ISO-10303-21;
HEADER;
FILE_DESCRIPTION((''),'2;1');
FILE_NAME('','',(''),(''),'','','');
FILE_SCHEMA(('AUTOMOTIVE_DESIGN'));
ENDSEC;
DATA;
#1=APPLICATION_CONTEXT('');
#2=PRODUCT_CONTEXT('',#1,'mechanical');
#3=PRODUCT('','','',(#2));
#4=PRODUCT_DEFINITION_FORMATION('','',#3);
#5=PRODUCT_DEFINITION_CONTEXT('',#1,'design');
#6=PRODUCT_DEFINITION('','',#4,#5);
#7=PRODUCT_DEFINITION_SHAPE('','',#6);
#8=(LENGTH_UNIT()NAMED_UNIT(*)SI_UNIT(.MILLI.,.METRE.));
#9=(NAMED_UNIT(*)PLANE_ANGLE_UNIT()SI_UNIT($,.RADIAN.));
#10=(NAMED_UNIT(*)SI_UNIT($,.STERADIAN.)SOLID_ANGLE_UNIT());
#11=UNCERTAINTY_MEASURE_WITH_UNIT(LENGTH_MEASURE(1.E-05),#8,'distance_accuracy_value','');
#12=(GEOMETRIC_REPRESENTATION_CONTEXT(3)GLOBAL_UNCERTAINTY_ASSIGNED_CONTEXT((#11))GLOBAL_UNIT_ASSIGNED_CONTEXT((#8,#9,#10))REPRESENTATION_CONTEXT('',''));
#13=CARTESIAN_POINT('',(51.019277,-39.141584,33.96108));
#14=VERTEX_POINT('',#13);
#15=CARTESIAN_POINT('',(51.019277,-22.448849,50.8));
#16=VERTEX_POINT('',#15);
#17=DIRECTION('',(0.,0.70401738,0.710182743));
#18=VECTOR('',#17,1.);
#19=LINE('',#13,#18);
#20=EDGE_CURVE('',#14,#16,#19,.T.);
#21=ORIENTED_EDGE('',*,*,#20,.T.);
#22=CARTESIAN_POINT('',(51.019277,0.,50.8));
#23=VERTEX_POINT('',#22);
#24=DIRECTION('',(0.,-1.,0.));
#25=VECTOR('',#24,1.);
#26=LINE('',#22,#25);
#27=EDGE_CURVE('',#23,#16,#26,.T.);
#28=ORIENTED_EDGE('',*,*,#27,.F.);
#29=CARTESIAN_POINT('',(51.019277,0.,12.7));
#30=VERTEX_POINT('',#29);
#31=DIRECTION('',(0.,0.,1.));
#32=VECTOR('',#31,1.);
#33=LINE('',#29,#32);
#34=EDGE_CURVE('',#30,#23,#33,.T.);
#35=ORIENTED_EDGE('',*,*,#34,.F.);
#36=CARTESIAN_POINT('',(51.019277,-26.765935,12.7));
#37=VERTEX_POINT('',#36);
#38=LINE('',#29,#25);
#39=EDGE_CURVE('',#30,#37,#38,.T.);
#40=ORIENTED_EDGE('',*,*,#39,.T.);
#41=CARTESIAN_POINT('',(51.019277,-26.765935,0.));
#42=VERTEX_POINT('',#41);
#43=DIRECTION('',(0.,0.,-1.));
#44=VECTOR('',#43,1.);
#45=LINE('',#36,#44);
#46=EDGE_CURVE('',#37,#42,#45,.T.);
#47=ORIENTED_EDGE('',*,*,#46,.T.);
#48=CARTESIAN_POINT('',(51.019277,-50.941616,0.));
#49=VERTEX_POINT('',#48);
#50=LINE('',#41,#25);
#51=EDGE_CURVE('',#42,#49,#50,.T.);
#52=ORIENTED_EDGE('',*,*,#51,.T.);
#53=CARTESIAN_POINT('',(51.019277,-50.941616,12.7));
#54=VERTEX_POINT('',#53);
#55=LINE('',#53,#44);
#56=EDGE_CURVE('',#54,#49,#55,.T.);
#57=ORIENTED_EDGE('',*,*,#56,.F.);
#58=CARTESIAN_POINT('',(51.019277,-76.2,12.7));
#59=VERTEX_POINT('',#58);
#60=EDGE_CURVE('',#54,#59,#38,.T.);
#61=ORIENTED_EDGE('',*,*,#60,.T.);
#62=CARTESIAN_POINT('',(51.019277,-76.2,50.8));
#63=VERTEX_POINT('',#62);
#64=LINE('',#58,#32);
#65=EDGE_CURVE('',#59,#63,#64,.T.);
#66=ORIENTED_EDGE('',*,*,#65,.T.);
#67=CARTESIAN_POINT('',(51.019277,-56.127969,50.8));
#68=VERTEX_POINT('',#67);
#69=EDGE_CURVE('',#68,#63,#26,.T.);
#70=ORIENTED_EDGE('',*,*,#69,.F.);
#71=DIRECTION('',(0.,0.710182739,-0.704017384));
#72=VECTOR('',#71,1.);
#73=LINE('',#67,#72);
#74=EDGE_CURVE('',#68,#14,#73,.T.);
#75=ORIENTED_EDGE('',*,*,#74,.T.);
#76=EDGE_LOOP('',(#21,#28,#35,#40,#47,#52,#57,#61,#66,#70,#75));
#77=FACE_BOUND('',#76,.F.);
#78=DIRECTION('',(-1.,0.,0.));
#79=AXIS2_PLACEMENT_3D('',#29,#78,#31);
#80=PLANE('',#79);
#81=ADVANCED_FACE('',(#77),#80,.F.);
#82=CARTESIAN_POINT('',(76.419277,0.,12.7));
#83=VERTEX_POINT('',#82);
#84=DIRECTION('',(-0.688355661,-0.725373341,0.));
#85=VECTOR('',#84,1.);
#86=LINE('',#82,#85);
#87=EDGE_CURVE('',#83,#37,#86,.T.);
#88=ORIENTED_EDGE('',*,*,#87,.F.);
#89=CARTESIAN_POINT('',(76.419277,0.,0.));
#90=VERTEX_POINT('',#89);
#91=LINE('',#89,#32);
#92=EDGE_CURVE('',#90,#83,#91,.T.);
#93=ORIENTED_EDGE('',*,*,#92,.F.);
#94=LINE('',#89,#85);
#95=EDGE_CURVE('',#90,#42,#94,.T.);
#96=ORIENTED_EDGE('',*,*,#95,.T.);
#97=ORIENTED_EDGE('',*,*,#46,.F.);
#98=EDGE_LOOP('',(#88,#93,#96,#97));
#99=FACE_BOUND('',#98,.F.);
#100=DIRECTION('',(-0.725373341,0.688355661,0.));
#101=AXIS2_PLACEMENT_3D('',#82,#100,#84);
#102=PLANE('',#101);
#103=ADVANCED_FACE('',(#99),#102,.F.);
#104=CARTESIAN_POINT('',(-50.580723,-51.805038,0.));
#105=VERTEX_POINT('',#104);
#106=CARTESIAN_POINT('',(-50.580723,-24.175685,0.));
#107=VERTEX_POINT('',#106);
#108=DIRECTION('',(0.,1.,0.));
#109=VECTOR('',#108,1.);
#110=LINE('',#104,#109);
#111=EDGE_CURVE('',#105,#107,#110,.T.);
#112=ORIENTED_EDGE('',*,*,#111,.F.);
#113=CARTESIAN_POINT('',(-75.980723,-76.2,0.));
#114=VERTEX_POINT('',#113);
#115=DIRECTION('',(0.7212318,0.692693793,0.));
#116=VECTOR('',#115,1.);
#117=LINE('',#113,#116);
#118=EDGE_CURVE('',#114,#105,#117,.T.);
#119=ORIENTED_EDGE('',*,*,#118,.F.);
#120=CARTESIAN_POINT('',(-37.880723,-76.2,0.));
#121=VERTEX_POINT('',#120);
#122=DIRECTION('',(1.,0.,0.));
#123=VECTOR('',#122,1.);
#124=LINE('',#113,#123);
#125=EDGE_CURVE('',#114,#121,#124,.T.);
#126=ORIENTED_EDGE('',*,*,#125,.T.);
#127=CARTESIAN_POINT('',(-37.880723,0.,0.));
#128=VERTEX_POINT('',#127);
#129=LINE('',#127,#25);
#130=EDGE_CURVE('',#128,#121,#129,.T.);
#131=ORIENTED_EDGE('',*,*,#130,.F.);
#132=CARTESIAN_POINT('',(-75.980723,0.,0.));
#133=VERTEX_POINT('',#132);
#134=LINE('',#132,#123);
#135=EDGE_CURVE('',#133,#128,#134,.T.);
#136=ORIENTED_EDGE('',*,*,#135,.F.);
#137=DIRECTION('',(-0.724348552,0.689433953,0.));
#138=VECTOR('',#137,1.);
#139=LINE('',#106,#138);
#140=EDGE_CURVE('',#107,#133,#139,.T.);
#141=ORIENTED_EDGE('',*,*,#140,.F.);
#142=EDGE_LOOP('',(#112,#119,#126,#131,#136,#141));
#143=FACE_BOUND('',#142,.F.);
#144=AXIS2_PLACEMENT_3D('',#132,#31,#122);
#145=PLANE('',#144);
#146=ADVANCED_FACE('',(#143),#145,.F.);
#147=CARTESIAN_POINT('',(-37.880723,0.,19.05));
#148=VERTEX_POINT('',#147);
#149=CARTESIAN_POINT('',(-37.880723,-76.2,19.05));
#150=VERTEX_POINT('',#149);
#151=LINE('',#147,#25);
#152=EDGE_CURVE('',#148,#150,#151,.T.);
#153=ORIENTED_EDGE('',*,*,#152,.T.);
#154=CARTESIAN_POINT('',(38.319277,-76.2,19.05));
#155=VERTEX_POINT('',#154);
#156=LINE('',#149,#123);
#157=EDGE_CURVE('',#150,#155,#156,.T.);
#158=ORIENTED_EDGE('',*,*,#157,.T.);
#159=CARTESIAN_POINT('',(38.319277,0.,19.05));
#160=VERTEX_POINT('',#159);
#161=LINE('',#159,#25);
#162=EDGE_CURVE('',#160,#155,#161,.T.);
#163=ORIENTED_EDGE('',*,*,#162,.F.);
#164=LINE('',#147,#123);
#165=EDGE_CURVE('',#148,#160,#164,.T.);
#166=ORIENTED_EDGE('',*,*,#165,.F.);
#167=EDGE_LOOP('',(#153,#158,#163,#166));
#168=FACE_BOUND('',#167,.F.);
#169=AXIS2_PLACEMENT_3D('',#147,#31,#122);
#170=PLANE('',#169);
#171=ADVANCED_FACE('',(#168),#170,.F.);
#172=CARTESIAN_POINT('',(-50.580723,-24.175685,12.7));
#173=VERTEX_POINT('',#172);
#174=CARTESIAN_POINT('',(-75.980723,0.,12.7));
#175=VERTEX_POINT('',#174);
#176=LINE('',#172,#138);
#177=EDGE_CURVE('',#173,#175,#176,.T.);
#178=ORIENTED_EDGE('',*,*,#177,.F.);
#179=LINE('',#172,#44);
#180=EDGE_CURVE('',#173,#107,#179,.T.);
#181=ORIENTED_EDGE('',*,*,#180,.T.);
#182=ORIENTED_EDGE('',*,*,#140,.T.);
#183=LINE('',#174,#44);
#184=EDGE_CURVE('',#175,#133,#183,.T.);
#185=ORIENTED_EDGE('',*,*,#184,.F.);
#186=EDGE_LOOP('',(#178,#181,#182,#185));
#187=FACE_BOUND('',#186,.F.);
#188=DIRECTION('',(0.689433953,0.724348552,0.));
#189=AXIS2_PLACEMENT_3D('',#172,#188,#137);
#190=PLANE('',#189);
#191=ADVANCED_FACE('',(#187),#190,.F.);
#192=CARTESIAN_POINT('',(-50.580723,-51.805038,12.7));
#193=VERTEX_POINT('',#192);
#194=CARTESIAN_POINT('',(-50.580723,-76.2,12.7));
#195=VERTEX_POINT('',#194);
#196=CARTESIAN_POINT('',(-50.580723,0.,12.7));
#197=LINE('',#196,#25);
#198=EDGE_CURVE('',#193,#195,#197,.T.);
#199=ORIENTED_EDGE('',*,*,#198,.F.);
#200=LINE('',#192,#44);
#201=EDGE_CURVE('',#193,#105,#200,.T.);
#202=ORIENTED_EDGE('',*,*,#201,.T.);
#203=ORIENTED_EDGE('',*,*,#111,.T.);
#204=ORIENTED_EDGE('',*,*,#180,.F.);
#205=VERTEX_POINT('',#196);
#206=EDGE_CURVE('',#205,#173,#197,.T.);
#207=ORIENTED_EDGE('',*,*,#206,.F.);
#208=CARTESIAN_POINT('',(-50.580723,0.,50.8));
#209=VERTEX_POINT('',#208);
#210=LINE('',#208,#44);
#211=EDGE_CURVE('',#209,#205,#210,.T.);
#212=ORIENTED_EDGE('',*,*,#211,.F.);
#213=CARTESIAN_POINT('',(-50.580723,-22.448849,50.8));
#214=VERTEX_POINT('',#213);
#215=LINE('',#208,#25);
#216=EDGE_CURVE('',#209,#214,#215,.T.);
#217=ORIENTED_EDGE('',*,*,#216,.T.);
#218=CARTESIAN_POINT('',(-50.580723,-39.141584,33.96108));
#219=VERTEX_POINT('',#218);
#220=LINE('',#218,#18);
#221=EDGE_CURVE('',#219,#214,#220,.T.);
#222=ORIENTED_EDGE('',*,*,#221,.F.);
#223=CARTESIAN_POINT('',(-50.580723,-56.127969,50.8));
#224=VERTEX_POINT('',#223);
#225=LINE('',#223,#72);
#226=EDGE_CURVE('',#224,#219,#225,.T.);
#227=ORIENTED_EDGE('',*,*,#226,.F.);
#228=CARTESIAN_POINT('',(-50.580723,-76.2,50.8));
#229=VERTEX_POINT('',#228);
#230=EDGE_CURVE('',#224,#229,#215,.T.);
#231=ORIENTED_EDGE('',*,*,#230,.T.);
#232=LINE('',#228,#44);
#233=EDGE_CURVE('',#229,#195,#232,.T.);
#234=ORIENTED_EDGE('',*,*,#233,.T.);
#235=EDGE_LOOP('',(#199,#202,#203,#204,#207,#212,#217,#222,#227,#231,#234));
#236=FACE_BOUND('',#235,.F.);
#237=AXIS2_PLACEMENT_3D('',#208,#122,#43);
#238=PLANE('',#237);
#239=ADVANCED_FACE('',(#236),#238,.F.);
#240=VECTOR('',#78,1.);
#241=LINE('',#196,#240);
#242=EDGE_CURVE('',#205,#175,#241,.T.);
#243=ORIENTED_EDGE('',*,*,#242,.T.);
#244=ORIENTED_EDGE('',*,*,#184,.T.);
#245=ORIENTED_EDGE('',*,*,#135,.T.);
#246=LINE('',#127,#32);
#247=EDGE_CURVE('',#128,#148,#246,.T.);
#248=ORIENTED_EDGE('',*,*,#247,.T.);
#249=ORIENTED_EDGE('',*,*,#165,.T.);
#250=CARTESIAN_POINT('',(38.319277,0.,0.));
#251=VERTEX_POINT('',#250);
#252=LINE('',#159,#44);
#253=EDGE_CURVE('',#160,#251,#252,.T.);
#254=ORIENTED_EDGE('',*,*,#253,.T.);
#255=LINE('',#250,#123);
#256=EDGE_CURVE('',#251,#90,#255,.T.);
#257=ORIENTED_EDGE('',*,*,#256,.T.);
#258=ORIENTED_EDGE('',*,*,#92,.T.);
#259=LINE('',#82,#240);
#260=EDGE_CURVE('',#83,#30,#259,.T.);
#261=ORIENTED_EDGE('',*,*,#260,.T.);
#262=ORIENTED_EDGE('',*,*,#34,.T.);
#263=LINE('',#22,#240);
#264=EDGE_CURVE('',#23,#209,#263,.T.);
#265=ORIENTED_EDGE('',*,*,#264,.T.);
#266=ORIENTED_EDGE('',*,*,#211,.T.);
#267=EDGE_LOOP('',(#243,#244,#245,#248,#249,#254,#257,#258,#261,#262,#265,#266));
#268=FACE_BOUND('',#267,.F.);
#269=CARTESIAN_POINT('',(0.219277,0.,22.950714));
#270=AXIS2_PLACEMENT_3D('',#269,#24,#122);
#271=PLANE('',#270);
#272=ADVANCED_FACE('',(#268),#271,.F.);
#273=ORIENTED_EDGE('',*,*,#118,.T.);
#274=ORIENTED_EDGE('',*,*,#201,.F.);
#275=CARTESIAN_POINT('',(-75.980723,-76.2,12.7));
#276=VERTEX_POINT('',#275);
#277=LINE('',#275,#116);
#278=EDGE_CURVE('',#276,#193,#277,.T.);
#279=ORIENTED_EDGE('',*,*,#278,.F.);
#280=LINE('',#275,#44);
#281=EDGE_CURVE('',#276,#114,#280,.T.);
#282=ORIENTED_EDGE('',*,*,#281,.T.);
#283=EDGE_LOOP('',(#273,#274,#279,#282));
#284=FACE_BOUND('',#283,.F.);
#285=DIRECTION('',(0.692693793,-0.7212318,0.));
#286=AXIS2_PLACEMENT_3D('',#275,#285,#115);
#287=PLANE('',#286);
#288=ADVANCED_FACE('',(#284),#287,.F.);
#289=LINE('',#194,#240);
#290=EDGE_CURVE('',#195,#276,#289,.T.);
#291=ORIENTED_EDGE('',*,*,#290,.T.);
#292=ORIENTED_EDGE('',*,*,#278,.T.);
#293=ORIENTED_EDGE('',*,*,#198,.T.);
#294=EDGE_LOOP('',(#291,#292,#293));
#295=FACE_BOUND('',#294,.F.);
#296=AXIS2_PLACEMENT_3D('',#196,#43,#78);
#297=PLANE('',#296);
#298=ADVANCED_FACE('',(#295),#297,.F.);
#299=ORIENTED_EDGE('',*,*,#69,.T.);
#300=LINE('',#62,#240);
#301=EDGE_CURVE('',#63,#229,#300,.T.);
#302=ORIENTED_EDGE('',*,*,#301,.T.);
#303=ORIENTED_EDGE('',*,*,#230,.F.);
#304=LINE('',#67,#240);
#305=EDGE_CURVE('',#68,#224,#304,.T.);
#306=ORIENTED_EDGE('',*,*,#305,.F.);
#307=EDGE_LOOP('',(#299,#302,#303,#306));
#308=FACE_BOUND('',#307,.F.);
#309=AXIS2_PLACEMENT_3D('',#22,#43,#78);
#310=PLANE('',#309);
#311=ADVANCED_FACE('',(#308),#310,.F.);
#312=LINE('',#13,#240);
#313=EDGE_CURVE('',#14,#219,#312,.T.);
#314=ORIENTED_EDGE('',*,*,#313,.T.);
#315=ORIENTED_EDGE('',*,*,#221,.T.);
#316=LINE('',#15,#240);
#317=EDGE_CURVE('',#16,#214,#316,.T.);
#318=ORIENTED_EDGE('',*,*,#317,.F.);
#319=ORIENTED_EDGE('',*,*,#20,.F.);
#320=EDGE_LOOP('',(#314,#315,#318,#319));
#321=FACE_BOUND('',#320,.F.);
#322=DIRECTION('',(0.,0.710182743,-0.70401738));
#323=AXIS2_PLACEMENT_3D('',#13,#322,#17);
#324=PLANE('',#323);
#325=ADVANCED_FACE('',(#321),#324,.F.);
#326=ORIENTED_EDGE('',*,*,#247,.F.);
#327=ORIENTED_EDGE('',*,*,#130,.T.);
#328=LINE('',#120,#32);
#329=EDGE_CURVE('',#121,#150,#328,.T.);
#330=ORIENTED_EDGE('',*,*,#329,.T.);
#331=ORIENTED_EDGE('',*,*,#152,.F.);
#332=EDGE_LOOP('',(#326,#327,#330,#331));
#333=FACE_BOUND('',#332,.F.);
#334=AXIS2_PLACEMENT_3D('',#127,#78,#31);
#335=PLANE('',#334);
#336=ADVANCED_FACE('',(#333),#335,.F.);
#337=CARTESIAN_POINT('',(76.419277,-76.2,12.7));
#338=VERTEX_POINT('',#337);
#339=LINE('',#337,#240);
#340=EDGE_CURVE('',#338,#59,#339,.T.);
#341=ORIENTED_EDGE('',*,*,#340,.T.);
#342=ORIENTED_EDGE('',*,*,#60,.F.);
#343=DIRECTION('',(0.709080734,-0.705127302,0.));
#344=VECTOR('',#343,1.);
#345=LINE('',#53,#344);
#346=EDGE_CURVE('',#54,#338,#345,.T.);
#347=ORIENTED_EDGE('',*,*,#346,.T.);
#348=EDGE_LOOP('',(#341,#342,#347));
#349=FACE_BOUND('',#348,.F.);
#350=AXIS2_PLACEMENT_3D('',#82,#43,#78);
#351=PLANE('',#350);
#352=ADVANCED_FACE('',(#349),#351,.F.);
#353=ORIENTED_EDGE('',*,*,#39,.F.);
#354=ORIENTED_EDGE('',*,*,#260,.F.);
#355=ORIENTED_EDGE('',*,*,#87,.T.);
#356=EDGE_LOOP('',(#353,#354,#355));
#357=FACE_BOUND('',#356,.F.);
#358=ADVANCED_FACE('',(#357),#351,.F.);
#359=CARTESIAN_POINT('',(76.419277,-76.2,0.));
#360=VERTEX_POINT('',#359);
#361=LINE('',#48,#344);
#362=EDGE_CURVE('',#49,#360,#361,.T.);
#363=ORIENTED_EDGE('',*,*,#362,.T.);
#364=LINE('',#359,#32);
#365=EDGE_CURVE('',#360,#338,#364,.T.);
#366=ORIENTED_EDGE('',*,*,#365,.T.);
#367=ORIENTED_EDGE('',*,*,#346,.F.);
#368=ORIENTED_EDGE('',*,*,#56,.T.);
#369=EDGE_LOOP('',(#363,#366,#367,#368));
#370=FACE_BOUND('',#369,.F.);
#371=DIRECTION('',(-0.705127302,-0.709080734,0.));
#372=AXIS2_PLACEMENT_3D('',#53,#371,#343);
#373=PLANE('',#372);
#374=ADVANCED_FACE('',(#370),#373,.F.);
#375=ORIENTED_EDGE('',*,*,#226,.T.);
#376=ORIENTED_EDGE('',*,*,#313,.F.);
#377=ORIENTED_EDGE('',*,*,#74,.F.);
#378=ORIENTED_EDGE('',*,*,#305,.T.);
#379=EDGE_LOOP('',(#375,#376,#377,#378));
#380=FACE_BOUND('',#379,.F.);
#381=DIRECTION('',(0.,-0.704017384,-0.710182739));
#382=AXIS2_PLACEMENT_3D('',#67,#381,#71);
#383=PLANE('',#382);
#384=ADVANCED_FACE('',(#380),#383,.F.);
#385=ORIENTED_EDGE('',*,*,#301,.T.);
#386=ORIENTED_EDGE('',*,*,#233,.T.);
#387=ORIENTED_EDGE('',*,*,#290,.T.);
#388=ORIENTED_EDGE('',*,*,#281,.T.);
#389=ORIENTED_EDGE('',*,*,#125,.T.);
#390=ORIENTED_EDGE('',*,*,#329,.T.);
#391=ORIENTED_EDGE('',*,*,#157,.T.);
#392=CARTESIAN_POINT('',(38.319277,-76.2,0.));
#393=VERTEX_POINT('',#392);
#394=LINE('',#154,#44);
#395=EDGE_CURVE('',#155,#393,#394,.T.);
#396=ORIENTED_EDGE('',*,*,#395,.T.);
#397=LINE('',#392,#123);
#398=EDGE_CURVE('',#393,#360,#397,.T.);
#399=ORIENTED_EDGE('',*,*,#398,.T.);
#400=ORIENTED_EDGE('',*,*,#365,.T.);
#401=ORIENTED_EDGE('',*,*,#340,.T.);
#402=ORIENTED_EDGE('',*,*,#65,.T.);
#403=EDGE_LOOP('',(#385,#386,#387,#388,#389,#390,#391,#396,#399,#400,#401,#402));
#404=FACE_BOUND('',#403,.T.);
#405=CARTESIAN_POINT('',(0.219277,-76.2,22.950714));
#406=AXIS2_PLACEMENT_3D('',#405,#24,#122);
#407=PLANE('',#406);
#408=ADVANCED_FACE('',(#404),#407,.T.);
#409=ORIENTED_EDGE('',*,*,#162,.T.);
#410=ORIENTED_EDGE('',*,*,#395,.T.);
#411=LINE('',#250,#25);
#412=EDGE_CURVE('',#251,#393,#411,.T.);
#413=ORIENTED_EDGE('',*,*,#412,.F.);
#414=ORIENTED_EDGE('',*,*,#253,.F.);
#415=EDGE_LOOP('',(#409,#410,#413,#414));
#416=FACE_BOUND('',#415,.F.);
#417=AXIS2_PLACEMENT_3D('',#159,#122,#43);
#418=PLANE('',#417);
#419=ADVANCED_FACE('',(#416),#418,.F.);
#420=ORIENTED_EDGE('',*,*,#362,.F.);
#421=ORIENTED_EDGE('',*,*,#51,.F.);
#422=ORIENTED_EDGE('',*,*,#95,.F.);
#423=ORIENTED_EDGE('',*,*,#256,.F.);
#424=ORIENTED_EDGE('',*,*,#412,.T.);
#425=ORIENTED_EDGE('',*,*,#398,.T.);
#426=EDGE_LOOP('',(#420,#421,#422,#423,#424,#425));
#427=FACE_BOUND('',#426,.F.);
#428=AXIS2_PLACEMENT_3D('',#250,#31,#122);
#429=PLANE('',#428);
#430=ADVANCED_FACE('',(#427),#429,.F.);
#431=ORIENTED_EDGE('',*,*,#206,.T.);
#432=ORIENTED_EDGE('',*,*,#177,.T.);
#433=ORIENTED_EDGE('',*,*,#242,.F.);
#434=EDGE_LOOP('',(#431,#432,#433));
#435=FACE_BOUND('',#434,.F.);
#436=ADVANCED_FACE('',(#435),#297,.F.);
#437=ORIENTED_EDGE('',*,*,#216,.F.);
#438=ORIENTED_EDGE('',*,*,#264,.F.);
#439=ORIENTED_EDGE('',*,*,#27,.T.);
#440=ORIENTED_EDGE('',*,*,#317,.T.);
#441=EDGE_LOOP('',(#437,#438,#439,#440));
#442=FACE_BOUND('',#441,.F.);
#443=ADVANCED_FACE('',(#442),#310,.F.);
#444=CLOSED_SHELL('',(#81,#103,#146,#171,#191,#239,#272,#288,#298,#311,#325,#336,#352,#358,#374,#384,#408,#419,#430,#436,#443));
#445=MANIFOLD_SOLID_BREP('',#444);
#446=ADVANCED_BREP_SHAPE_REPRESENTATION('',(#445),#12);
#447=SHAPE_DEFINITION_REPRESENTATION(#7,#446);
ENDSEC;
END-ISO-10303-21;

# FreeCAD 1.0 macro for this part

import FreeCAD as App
import Part
import Sketcher
from FreeCAD import Vector
Q = App.Units.Quantity


def add_polygon(sketch, points):
    """Adds a closed chain of lines whose ends are joined by coincident constraints."""
    first, n = sketch.GeometryCount, len(points)
    for a, b in zip(points, points[1:] + points[:1]):
        sketch.addGeometry(Part.LineSegment(App.Vector(*a, 0), App.Vector(*b, 0)), False)
    for i in range(n):
        sketch.addConstraint(Sketcher.Constraint("Coincident", first + i, 2, first + (i + 1) % n, 1))

doc = App.newDocument("Part")
params = doc.addObject("Spreadsheet::Sheet", "Params")
for row, (alias, value) in enumerate([
    ("sketch1_width", "3 in"),
    ("sketch1_width2", "1 in"),
    ("sketch1_width3", "4 in"),
    ("sketch1_height", "0.5 in"),
    ("sketch1_height2", "0.75 in"),
    ("pad1_length", "3 in"),
    ("sketch2_height", "3 in"),
    ("sketch3_height", "3 in"),
], start=1):
    params.set(f"A{row}", alias)
    params.set(f"B{row}", "=" + value)
    params.setAlias(f"B{row}", alias)

body = doc.addObject("PartDesign::Body", "Body")

# Sketch on XZ plane
sketch1 = doc.addObject("Sketcher::SketchObject", "Sketch")
body.addObject(sketch1)
sketch1.AttachmentSupport = (doc.XZ_Plane, [""])
sketch1.MapMode = "FlatFace"
add_polygon(sketch1, [(-76, 13), (-76, 0), (-38, 0), (-38, 19), (38, 19), (38, 0), (76, 0), (76, 13), (51, 13), (51, 51), (-51, 51), (-51, 13)])  # lines 0-11
sketch1.addConstraint([
    Sketcher.Constraint("Vertical", 0),
    Sketcher.Constraint("Horizontal", 1),
    Sketcher.Constraint("Vertical", 2),
    Sketcher.Constraint("Horizontal", 3),
    Sketcher.Constraint("Vertical", 4),
    Sketcher.Constraint("Horizontal", 5),
    Sketcher.Constraint("Vertical", 6),
    Sketcher.Constraint("Horizontal", 7),
    Sketcher.Constraint("Vertical", 8),
    Sketcher.Constraint("Horizontal", 9),
    Sketcher.Constraint("Vertical", 10),
    Sketcher.Constraint("Horizontal", 11),
    Sketcher.Constraint("PointOnObject", 0, 2, -1),
    Sketcher.Constraint("PointOnObject", 4, 2, -1),
    Sketcher.Constraint("Horizontal", 7, 2, 10, 2),
    Sketcher.Constraint("Equal", 1, 5),
    Sketcher.Constraint("Equal", 7, 11),
    Sketcher.Constraint("Equal", 5, 8),
    Sketcher.Constraint("DistanceX", 3, 1, 3, 2, Q("3 in")),
    Sketcher.Constraint("DistanceX", 7, 2, 7, 1, Q("1 in")),
    Sketcher.Constraint("DistanceX", 9, 2, 9, 1, Q("4 in")),
    Sketcher.Constraint("DistanceY", 0, 2, 0, 1, Q("0.5 in")),
    Sketcher.Constraint("DistanceY", 2, 1, 2, 2, Q("0.75 in")),
    Sketcher.Constraint("DistanceX", 0, 2, -1, 1, Q("75.980723 mm")),
])
sketch1.setExpression("Constraints[30]", "Params.sketch1_width")
sketch1.setExpression("Constraints[31]", "Params.sketch1_width2")
sketch1.setExpression("Constraints[32]", "Params.sketch1_width3")
sketch1.setExpression("Constraints[33]", "Params.sketch1_height")
sketch1.setExpression("Constraints[34]", "Params.sketch1_height2")
pad1 = doc.addObject("PartDesign::Pad", "Pad")
body.addObject(pad1)
pad1.Profile = sketch1
pad1.setExpression("Length", "Params.pad1_length")

# Sketch on XY plane
sketch2 = doc.addObject("Sketcher::SketchObject", "Sketch001")
body.addObject(sketch2)
sketch2.AttachmentSupport = (doc.XY_Plane, [""])
sketch2.MapMode = "FlatFace"
sketch2.AttachmentOffset = App.Placement(Vector(0, 0, 0.5 * 25.4), App.Rotation())
add_polygon(sketch2, [(51, -51), (76, -76), (76, 0), (51, -27)])  # lines 0-3
sketch2.addConstraint([
    Sketcher.Constraint("Vertical", 1),
    Sketcher.Constraint("Vertical", 3),
    Sketcher.Constraint("PointOnObject", 1, 2, -1),
    Sketcher.Constraint("DistanceY", 1, 1, 1, 2, Q("3 in")),
    Sketcher.Constraint("DistanceX", 2, 2, 1, 2, Q("1 in")),
    Sketcher.Constraint("DistanceY", 3, 2, 3, 1, Q("24.175681 mm")),
    Sketcher.Constraint("Distance", 2, Q("36.899529 mm")),
    Sketcher.Constraint("DistanceX", -1, 1, 0, 2, Q("76.419277 mm")),
])
sketch2.setExpression("Constraints[7]", "Params.sketch2_height")
pocket1 = doc.addObject("PartDesign::Pocket", "Pocket")
body.addObject(pocket1)
pocket1.Profile = sketch2
pocket1.Type = "ThroughAll"

# Sketch on XY plane
sketch3 = doc.addObject("Sketcher::SketchObject", "Sketch002")
body.addObject(sketch3)
sketch3.AttachmentSupport = (doc.XY_Plane, [""])
sketch3.MapMode = "FlatFace"
sketch3.AttachmentOffset = App.Placement(Vector(0, 0, 0.5 * 25.4), App.Rotation())
add_polygon(sketch3, [(-76, 0), (-76, -76), (-51, -52), (-51, -24)])  # lines 0-3
sketch3.addConstraint([
    Sketcher.Constraint("Vertical", 0),
    Sketcher.Constraint("Vertical", 2),
    Sketcher.Constraint("PointOnObject", 3, 2, -1),
    Sketcher.Constraint("DistanceY", 0, 2, 0, 1, Q("3 in")),
    Sketcher.Constraint("DistanceX", 0, 2, 1, 2, Q("1 in")),
    Sketcher.Constraint("Distance", 3, Q("35.065991 mm")),
    Sketcher.Constraint("DistanceY", 2, 1, 2, 2, Q("27.629353 mm")),
    Sketcher.Constraint("DistanceX", 0, 2, -1, 1, Q("75.980723 mm")),
])
sketch3.setExpression("Constraints[7]", "Params.sketch3_height")
pocket2 = doc.addObject("PartDesign::Pocket", "Pocket001")
body.addObject(pocket2)
pocket2.Profile = sketch3
pocket2.Type = "ThroughAll"

# Sketch on YZ plane
sketch4 = doc.addObject("Sketcher::SketchObject", "Sketch003")
body.addObject(sketch4)
sketch4.AttachmentSupport = (doc.YZ_Plane, [""])
sketch4.MapMode = "FlatFace"
sketch4.AttachmentOffset = App.Placement(Vector(0, 0, 51.019277), App.Rotation())
add_polygon(sketch4, [(-56, 51), (-39, 34), (-22, 51)])  # lines 0-2
sketch4.addConstraint([
    Sketcher.Constraint("Horizontal", 2),
    Sketcher.Constraint("Perpendicular", 0, 1),
    Sketcher.Constraint("DistanceY", -1, 1, 1, 2, Q("2 in")),
    Sketcher.Constraint("DistanceX", 2, 2, 2, 1, Q("33.67912 mm")),
    Sketcher.Constraint("Distance", 0, Q("23.91833 mm")),
    Sketcher.Constraint("DistanceX", 1, 2, -1, 1, Q("22.448849 mm")),
])
pocket3 = doc.addObject("PartDesign::Pocket", "Pocket002")
body.addObject(pocket3)
pocket3.Profile = sketch4
pocket3.Type = "ThroughAll"

doc.recompute()
